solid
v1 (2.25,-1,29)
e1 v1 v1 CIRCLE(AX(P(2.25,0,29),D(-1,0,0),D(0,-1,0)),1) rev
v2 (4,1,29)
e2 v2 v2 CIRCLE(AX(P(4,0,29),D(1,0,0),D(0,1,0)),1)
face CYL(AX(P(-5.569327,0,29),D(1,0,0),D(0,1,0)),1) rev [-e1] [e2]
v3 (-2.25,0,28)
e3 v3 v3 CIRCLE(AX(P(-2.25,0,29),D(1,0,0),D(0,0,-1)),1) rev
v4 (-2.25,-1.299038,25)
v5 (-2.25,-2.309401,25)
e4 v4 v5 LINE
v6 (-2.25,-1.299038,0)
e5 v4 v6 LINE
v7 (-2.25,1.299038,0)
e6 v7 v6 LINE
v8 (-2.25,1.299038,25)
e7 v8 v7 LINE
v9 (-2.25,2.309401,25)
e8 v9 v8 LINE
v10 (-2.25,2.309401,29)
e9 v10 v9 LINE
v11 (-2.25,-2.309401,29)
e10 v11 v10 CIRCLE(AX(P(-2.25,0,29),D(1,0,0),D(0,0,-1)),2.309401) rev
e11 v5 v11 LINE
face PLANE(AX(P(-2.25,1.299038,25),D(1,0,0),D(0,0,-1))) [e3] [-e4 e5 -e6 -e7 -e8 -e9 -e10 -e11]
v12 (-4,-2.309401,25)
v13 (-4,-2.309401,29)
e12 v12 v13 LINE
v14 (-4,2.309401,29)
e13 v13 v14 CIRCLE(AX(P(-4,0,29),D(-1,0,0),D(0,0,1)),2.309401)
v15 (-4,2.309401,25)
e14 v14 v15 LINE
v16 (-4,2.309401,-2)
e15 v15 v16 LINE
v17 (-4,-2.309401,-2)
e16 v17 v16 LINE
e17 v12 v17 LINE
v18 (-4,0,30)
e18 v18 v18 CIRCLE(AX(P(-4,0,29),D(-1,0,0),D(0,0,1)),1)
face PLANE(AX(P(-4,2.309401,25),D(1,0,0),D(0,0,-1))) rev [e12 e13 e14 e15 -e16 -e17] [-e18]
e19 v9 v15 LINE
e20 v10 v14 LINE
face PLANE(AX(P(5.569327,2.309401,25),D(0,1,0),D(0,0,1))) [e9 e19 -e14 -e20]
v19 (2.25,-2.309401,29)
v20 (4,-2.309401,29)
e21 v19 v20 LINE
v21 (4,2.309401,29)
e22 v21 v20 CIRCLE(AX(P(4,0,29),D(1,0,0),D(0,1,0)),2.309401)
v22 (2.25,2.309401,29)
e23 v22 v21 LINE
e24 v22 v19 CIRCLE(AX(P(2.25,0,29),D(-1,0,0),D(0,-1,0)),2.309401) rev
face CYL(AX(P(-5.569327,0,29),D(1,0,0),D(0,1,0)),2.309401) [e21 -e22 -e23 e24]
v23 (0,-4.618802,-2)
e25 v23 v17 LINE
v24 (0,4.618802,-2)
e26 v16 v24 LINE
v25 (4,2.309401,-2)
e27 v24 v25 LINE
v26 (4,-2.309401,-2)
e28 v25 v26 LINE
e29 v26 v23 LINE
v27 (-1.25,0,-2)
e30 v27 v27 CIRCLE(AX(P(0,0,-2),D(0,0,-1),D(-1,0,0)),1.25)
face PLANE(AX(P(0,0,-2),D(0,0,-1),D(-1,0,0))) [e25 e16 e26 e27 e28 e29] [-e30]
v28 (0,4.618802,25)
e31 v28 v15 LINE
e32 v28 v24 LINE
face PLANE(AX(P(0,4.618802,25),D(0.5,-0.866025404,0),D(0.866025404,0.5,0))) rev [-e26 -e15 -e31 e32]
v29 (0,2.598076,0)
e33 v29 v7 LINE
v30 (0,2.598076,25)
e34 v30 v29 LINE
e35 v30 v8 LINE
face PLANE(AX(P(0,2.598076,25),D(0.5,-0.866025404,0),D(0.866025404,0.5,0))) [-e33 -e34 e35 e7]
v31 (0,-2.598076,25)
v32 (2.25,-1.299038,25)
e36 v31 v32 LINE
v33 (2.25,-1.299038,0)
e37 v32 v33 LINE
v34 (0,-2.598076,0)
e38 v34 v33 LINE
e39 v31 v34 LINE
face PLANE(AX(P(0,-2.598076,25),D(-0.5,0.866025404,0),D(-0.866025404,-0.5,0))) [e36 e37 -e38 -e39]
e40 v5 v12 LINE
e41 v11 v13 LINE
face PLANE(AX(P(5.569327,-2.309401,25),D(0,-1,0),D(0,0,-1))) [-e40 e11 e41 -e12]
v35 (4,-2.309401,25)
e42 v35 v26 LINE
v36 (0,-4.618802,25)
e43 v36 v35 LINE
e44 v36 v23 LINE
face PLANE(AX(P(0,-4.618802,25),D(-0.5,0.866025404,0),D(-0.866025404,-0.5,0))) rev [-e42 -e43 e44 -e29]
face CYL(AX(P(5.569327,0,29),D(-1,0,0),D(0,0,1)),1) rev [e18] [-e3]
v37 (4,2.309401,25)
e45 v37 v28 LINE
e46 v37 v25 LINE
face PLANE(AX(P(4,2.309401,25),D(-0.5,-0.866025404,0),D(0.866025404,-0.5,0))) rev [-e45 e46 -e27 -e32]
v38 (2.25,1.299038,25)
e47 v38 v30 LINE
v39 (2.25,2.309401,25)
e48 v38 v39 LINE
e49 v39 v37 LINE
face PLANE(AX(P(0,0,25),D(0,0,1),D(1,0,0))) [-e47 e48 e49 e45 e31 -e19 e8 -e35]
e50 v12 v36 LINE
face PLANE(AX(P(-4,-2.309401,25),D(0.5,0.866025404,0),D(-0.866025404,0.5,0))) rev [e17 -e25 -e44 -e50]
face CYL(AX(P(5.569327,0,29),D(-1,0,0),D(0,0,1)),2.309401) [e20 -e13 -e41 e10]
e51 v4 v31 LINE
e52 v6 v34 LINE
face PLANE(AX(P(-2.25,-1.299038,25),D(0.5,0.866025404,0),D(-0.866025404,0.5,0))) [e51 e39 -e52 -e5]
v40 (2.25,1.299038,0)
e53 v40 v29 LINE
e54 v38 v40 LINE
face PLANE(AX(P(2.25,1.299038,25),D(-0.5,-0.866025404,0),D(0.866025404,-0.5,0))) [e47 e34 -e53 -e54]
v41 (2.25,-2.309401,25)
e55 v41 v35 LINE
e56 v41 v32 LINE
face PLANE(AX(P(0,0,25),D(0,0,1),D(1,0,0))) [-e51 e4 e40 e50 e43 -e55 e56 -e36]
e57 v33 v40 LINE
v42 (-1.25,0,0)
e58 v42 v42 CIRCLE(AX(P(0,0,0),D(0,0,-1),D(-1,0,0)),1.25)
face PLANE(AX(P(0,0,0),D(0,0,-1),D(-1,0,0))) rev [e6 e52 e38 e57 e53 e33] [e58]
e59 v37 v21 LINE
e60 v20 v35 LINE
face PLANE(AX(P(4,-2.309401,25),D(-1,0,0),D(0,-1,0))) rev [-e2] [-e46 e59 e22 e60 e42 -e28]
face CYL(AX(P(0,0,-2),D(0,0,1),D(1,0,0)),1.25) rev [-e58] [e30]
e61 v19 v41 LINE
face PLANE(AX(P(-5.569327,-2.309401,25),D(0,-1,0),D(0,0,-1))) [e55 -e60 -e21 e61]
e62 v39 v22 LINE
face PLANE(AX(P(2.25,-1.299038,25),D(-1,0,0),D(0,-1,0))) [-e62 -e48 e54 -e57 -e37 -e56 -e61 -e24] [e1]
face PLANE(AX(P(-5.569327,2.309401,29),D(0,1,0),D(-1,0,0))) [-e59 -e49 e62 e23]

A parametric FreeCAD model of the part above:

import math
import FreeCAD as App
import Part
import Sketcher

V = App.Vector
Q = App.Units.Quantity


def add_polygon(sketch, points):
    """Adds a closed chain of lines whose ends are joined by coincident constraints."""
    first, n = sketch.GeometryCount, len(points)
    for a, b in zip(points, points[1:] + points[:1]):
        sketch.addGeometry(Part.LineSegment(App.Vector(*a, 0), App.Vector(*b, 0)), False)
    for i in range(n):
        sketch.addConstraint(Sketcher.Constraint("Coincident", first + i, 2, first + (i + 1) % n, 1))

doc = App.newDocument("Part")
body = doc.addObject("PartDesign::Body", "Body")

sketch1 = doc.addObject("Sketcher::SketchObject", "Sketch")
body.addObject(sketch1)
sketch1.AttachmentSupport = (doc.XY_Plane, [""])
sketch1.MapMode = "FlatFace"
add_polygon(sketch1, [(0, 4.6), (-4, 2.3), (-4, -2.3), (0, -4.6), (4, -2.3), (4, 2.3)])
add_polygon(sketch1, [(-2.2, 1.3), (0, 2.6), (2.2, 1.3), (2.2, -1.3), (0, -2.6), (-2.2, -1.3)])
sketch1.addConstraint([
    Sketcher.Constraint("Vertical", 1),
    Sketcher.Constraint("Vertical", 4),
    Sketcher.Constraint("Vertical", 8),
    Sketcher.Constraint("Vertical", 11),
    Sketcher.Constraint("Symmetric", 0, 2, 3, 2, -1, 1),
    Sketcher.Constraint("Symmetric", 2, 2, 5, 2, -1, 1),
    Sketcher.Constraint("Symmetric", 6, 2, 9, 2, -1, 1),
    Sketcher.Constraint("Symmetric", 7, 2, 10, 2, -1, 1),
    Sketcher.Constraint("PointOnObject", 2, 2, -2),
    Sketcher.Constraint("PointOnObject", 6, 2, -2),
    Sketcher.Constraint("Parallel", 2, 5),
    Sketcher.Constraint("Parallel", 3, 6),
    Sketcher.Constraint("Parallel", 5, 7),
    Sketcher.Constraint("Parallel", 6, 9),
    Sketcher.Constraint("Horizontal", 1, 2, 3, 2),
    Sketcher.Constraint("Angle", 0, Q("-150 deg")),
    Sketcher.Constraint("DistanceX", 0, 2, -1, 1, 4.0),
    Sketcher.Constraint("DistanceX", -1, 1, 7, 2, 2.25),
    Sketcher.Constraint("DistanceY", -1, 1, 0, 2, 2.309401),
    Sketcher.Constraint("DistanceY", 8, 2, 8, 1, 2.598076),
])
pad1 = doc.addObject("PartDesign::Pad", "Pad")
body.addObject(pad1)
pad1.Profile = sketch1
pad1.Length = 25

sketch2 = doc.addObject("Sketcher::SketchObject", "Sketch001")
body.addObject(sketch2)
sketch2.AttachmentSupport = (doc.XY_Plane, [""])
sketch2.MapMode = "FlatFace"
add_polygon(sketch2, [(0, 4.6), (4, 2.3), (4, -2.3), (0, -4.6), (-4, -2.3), (-4, 2.3)])
sketch2.addGeometry(Part.Circle(V(0, 0, 0), V(0, 0, 1), 1.2), False)
sketch2.addConstraint([
    Sketcher.Constraint("Vertical", 1),
    Sketcher.Constraint("Vertical", 4),
    Sketcher.Constraint("Coincident", 6, 3, -1, 1),
    Sketcher.Constraint("Symmetric", 0, 2, 3, 2, -1, 1),
    Sketcher.Constraint("Symmetric", 2, 2, 5, 2, -1, 1),
    Sketcher.Constraint("PointOnObject", 2, 2, -2),
    Sketcher.Constraint("Parallel", 2, 5),
    Sketcher.Constraint("Horizontal", 1, 2, 3, 2),
    Sketcher.Constraint("Diameter", 6, 2.5),
    Sketcher.Constraint("Angle", 0, Q("-30 deg")),
    Sketcher.Constraint("DistanceX", -1, 1, 0, 2, 4.0),
    Sketcher.Constraint("DistanceY", -1, 1, 0, 2, 2.309401),
])
pad2 = doc.addObject("PartDesign::Pad", "Pad001")
body.addObject(pad2)
pad2.Profile = sketch2
pad2.Length = 2
pad2.Reversed = True

sketch3 = doc.addObject("Sketcher::SketchObject", "Sketch002")
body.addObject(sketch3)
sketch3.AttachmentSupport = (doc.YZ_Plane, [""])
sketch3.MapMode = "FlatFace"
sketch3.AttachmentOffset = App.Placement(V(0, 0, -4), App.Rotation())
sketch3.addGeometry([
    Part.LineSegment(V(2.3, 29, 0), V(2.3, 25, 0)),
    Part.LineSegment(V(2.3, 25, 0), V(-2.3, 25, 0)),
    Part.LineSegment(V(-2.3, 25, 0), V(-2.3, 29, 0)),
    Part.ArcOfCircle(Part.Circle(V(0, 29, 0), V(0, 0, 1), 2.3), math.radians(0), math.radians(180)),
    Part.Circle(V(0, 29, 0), V(0, 0, 1), 1),
], False)
sketch3.addConstraint([
    Sketcher.Constraint("Coincident", 0, 2, 1, 1),
    Sketcher.Constraint("Coincident", 1, 2, 2, 1),
    Sketcher.Constraint("Tangent", 2, 2, 3, 2),
    Sketcher.Constraint("Tangent", 3, 1, 0, 1),
    Sketcher.Constraint("Vertical", 0),
    Sketcher.Constraint("Horizontal", 1),
    Sketcher.Constraint("Vertical", 2),
    Sketcher.Constraint("Coincident", 4, 3, 3, 3),
    Sketcher.Constraint("PointOnObject", 3, 3, -2),
    Sketcher.Constraint("Diameter", 4, 2.0),
    Sketcher.Constraint("DistanceY", 0, 2, 0, 1, 4.0),
    Sketcher.Constraint("DistanceY", -1, 1, 3, 3, 29.0),
    Sketcher.Constraint("Radius", 3, 2.309401),
])
pad3 = doc.addObject("PartDesign::Pad", "Pad002")
body.addObject(pad3)
pad3.Profile = sketch3
pad3.Length = 1.75

sketch4 = doc.addObject("Sketcher::SketchObject", "Sketch003")
body.addObject(sketch4)
sketch4.AttachmentSupport = (doc.YZ_Plane, [""])
sketch4.MapMode = "FlatFace"
sketch4.AttachmentOffset = App.Placement(V(0, 0, 4), App.Rotation())
sketch4.addGeometry([
    Part.LineSegment(V(2.3, 25, 0), V(2.3, 29, 0)),
    Part.ArcOfCircle(Part.Circle(V(0, 29, 0), V(0, 0, 1), 2.3), math.radians(0), math.radians(180)),
    Part.LineSegment(V(-2.3, 29, 0), V(-2.3, 25, 0)),
    Part.LineSegment(V(-2.3, 25, 0), V(2.3, 25, 0)),
    Part.Circle(V(0, 29, 0), V(0, 0, 1), 1),
], False)
sketch4.addConstraint([
    Sketcher.Constraint("Tangent", 0, 2, 1, 1),
    Sketcher.Constraint("Tangent", 1, 2, 2, 1),
    Sketcher.Constraint("Coincident", 2, 2, 3, 1),
    Sketcher.Constraint("Coincident", 3, 2, 0, 1),
    Sketcher.Constraint("Vertical", 0),
    Sketcher.Constraint("Vertical", 2),
    Sketcher.Constraint("Horizontal", 3),
    Sketcher.Constraint("Coincident", 4, 3, 1, 3),
    Sketcher.Constraint("PointOnObject", 1, 3, -2),
    Sketcher.Constraint("Diameter", 4, 2.0),
    Sketcher.Constraint("DistanceY", 0, 1, 0, 2, 4.0),
    Sketcher.Constraint("DistanceY", -1, 1, 1, 3, 29.0),
    Sketcher.Constraint("Radius", 1, 2.309401),
])
pad4 = doc.addObject("PartDesign::Pad", "Pad003")
body.addObject(pad4)
pad4.Profile = sketch4
pad4.Length = 1.75
pad4.Reversed = True

doc.recompute()
